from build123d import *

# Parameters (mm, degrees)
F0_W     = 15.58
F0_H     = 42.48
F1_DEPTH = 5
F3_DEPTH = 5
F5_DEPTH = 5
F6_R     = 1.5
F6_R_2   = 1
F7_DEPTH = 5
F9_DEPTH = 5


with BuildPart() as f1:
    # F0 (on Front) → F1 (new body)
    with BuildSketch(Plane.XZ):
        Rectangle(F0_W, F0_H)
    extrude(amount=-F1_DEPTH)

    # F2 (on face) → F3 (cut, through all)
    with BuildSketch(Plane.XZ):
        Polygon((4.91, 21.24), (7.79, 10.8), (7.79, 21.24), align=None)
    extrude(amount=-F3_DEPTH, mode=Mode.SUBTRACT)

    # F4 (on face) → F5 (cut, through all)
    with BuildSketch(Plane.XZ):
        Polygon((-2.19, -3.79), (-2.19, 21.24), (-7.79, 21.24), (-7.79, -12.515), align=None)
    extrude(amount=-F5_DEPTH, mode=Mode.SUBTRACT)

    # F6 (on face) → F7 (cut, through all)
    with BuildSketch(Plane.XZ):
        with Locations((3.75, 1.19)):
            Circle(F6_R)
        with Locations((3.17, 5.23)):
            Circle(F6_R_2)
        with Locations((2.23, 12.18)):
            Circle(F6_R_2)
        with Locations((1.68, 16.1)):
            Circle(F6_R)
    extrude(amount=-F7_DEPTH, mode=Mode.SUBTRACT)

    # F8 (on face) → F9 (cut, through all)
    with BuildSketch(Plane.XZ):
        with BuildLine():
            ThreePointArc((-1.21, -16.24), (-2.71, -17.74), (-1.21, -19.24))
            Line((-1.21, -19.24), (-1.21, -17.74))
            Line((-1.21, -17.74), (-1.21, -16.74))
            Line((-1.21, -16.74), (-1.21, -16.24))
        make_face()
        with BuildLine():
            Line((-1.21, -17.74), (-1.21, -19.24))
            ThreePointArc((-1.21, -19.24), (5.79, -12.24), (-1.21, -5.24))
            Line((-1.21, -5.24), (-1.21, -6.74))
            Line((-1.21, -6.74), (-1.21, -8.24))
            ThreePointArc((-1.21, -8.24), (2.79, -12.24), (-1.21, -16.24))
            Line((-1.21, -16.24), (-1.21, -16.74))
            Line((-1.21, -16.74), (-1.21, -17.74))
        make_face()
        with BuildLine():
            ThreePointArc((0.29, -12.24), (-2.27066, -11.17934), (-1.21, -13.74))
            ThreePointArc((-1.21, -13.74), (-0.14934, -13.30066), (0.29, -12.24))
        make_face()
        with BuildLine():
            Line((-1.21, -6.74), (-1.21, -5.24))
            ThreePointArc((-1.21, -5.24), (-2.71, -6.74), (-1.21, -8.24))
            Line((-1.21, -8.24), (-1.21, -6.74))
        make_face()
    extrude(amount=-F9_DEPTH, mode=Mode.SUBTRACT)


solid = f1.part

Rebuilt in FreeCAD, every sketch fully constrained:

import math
import FreeCAD as App
import Part
import Sketcher
from FreeCAD import Vector


def add_polygon(sketch, points):
    """Adds a closed chain of lines whose ends are joined by coincident constraints."""
    first, n = sketch.GeometryCount, len(points)
    for a, b in zip(points, points[1:] + points[:1]):
        sketch.addGeometry(Part.LineSegment(App.Vector(*a, 0), App.Vector(*b, 0)), False)
    for i in range(n):
        sketch.addConstraint(Sketcher.Constraint("Coincident", first + i, 2, first + (i + 1) % n, 1))

doc = App.newDocument("Part")
body = doc.addObject("PartDesign::Body", "Body")

sketch1 = doc.addObject("Sketcher::SketchObject", "Sketch")
body.addObject(sketch1)
sketch1.AttachmentSupport = (doc.XZ_Plane, [""])
sketch1.MapMode = "FlatFace"
add_polygon(sketch1, [(-8, 21), (-8, -21), (8, -21), (8, 21)])
sketch1.addConstraint(Sketcher.Constraint("Vertical", 0))
sketch1.addConstraint(Sketcher.Constraint("Horizontal", 1))
sketch1.addConstraint(Sketcher.Constraint("Vertical", 2))
sketch1.addConstraint(Sketcher.Constraint("Horizontal", 3))
sketch1.addConstraint(Sketcher.Constraint("Symmetric", 0, 2, 2, 2, -1, 1))
sketch1.addConstraint(Sketcher.Constraint("DistanceX", 1, 1, 1, 2, 15.58))
sketch1.addConstraint(Sketcher.Constraint("DistanceY", 0, 2, 0, 1, 42.48))
pad1 = doc.addObject("PartDesign::Pad", "Pad")
body.addObject(pad1)
pad1.Profile = sketch1
pad1.Length = 5
pad1.Reversed = True

sketch2 = doc.addObject("Sketcher::SketchObject", "Sketch001")
body.addObject(sketch2)
sketch2.AttachmentSupport = (doc.XZ_Plane, [""])
sketch2.MapMode = "FlatFace"
add_polygon(sketch2, [(4.9, 21.2), (7.8, 10.8), (7.8, 21.2)])
sketch2.addConstraint(Sketcher.Constraint("Vertical", 1))
sketch2.addConstraint(Sketcher.Constraint("Horizontal", 2))
sketch2.addConstraint(Sketcher.Constraint("DistanceX", 2, 2, 2, 1, 2.88))
sketch2.addConstraint(Sketcher.Constraint("DistanceY", 1, 1, 1, 2, 10.44))
sketch2.addConstraint(Sketcher.Constraint("DistanceY", -1, 1, 0, 2, 10.8))
sketch2.addConstraint(Sketcher.Constraint("DistanceX", -1, 1, 0, 2, 7.79))
pocket1 = doc.addObject("PartDesign::Pocket", "Pocket")
body.addObject(pocket1)
pocket1.Profile = sketch2
pocket1.Type = "ThroughAll"

sketch3 = doc.addObject("Sketcher::SketchObject", "Sketch002")
body.addObject(sketch3)
sketch3.AttachmentSupport = (doc.XZ_Plane, [""])
sketch3.MapMode = "FlatFace"
add_polygon(sketch3, [(-2, -4), (-2, 21), (-8, 21), (-8, -13)])
sketch3.addConstraint(Sketcher.Constraint("Vertical", 0))
sketch3.addConstraint(Sketcher.Constraint("Horizontal", 1))
sketch3.addConstraint(Sketcher.Constraint("Vertical", 2))
sketch3.addConstraint(Sketcher.Constraint("DistanceX", 1, 2, 1, 1, 5.6))
sketch3.addConstraint(Sketcher.Constraint("DistanceY", 0, 1, 0, 2, 25.03))
sketch3.addConstraint(Sketcher.Constraint("DistanceY", 2, 2, 2, 1, 33.755))
sketch3.addConstraint(Sketcher.Constraint("DistanceX", 0, 2, -1, 1, 2.19))
sketch3.addConstraint(Sketcher.Constraint("DistanceY", -1, 1, 0, 2, 21.24))
pocket2 = doc.addObject("PartDesign::Pocket", "Pocket001")
body.addObject(pocket2)
pocket2.Profile = sketch3
pocket2.Type = "ThroughAll"

sketch4 = doc.addObject("Sketcher::SketchObject", "Sketch003")
body.addObject(sketch4)
sketch4.AttachmentSupport = (doc.XZ_Plane, [""])
sketch4.MapMode = "FlatFace"
sketch4.addGeometry(Part.Circle(Vector(3.8, 1.2, 0), Vector(0, 0, 1), 1.5), False)
sketch4.addGeometry(Part.Circle(Vector(3.2, 5.2, 0), Vector(0, 0, 1), 1), False)
sketch4.addGeometry(Part.Circle(Vector(2.2, 12.2, 0), Vector(0, 0, 1), 1), False)
sketch4.addGeometry(Part.Circle(Vector(1.7, 16.1, 0), Vector(0, 0, 1), 1.5), False)
sketch4.addConstraint(Sketcher.Constraint("Equal", 1, 2))
sketch4.addConstraint(Sketcher.Constraint("Equal", 0, 3))
sketch4.addConstraint(Sketcher.Constraint("Diameter", 0, 3.0))
sketch4.addConstraint(Sketcher.Constraint("Diameter", 1, 2.0))
sketch4.addConstraint(Sketcher.Constraint("DistanceY", -1, 1, 3, 3, 16.1))
sketch4.addConstraint(Sketcher.Constraint("DistanceX", -1, 1, 0, 3, 3.75))
sketch4.addConstraint(Sketcher.Constraint("DistanceY", -1, 1, 0, 3, 1.19))
sketch4.addConstraint(Sketcher.Constraint("DistanceX", -1, 1, 1, 3, 3.17))
sketch4.addConstraint(Sketcher.Constraint("DistanceY", -1, 1, 1, 3, 5.23))
sketch4.addConstraint(Sketcher.Constraint("DistanceX", -1, 1, 2, 3, 2.23))
sketch4.addConstraint(Sketcher.Constraint("DistanceY", -1, 1, 2, 3, 12.18))
sketch4.addConstraint(Sketcher.Constraint("DistanceX", -1, 1, 3, 3, 1.68))
pocket3 = doc.addObject("PartDesign::Pocket", "Pocket002")
body.addObject(pocket3)
pocket3.Profile = sketch4
pocket3.Type = "ThroughAll"

sketch5 = doc.addObject("Sketcher::SketchObject", "Sketch004")
body.addObject(sketch5)
sketch5.AttachmentSupport = (doc.XZ_Plane, [""])
sketch5.MapMode = "FlatFace"
sketch5.addGeometry(Part.ArcOfCircle(Part.Circle(Vector(-1.2, -17.7, 0), Vector(0, 0, 1), 1.5), math.radians(90), math.radians(270)), False)
sketch5.addGeometry(Part.ArcOfCircle(Part.Circle(Vector(-1.2, -12.2, 0), Vector(0, 0, 1), 7), math.radians(-90), math.radians(90)), False)
sketch5.addGeometry(Part.ArcOfCircle(Part.Circle(Vector(-1.2, -6.7, 0), Vector(0, 0, 1), 1.5), math.radians(90), math.radians(270)), False)
sketch5.addGeometry(Part.ArcOfCircle(Part.Circle(Vector(-1.2, -12.2, 0), Vector(0, 0, 1), 4), math.radians(-90), math.radians(90)), False)
sketch5.addGeometry(Part.ArcOfCircle(Part.Circle(Vector(-1.2, -12.2, 0), Vector(0, 0, 1), 1.5), math.radians(0), math.radians(270)), False)
sketch5.addGeometry(Part.ArcOfCircle(Part.Circle(Vector(-1.2, -12.2, 0), Vector(0, 0, 1), 1.5), math.radians(-90), math.radians(0)), False)
sketch5.addConstraint(Sketcher.Constraint("Tangent", 0, 2, 1, 1))
sketch5.addConstraint(Sketcher.Constraint("Tangent", 1, 2, 2, 1))
sketch5.addConstraint(Sketcher.Constraint("Tangent", 2, 2, 3, 2))
sketch5.addConstraint(Sketcher.Constraint("Tangent", 3, 1, 0, 1))
sketch5.addConstraint(Sketcher.Constraint("Tangent", 4, 1, 5, 2))
sketch5.addConstraint(Sketcher.Constraint("Coincident", 5, 1, 4, 2))
sketch5.addConstraint(Sketcher.Constraint("Coincident", 3, 3, 1, 3))
sketch5.addConstraint(Sketcher.Constraint("Coincident", 4, 3, 1, 3))
sketch5.addConstraint(Sketcher.Constraint("Equal", 2, 4))
sketch5.addConstraint(Sketcher.Constraint("Horizontal", 5, 3, 4, 1))
sketch5.addConstraint(Sketcher.Constraint("Vertical", 0, 3, 1, 3))
sketch5.addConstraint(Sketcher.Constraint("Vertical", 1, 3, 2, 3))
sketch5.addConstraint(Sketcher.Constraint("Vertical", 3, 1, 5, 1))
sketch5.addConstraint(Sketcher.Constraint("Radius", 1, 7.0))
sketch5.addConstraint(Sketcher.Constraint("Radius", 3, 4.0))
sketch5.addConstraint(Sketcher.Constraint("DistanceX", 0, 3, -1, 1, 1.21))
sketch5.addConstraint(Sketcher.Constraint("DistanceY", 0, 3, -1, 1, 17.74))
pocket4 = doc.addObject("PartDesign::Pocket", "Pocket003")
body.addObject(pocket4)
pocket4.Profile = sketch5
pocket4.Type = "ThroughAll"

doc.recompute()
